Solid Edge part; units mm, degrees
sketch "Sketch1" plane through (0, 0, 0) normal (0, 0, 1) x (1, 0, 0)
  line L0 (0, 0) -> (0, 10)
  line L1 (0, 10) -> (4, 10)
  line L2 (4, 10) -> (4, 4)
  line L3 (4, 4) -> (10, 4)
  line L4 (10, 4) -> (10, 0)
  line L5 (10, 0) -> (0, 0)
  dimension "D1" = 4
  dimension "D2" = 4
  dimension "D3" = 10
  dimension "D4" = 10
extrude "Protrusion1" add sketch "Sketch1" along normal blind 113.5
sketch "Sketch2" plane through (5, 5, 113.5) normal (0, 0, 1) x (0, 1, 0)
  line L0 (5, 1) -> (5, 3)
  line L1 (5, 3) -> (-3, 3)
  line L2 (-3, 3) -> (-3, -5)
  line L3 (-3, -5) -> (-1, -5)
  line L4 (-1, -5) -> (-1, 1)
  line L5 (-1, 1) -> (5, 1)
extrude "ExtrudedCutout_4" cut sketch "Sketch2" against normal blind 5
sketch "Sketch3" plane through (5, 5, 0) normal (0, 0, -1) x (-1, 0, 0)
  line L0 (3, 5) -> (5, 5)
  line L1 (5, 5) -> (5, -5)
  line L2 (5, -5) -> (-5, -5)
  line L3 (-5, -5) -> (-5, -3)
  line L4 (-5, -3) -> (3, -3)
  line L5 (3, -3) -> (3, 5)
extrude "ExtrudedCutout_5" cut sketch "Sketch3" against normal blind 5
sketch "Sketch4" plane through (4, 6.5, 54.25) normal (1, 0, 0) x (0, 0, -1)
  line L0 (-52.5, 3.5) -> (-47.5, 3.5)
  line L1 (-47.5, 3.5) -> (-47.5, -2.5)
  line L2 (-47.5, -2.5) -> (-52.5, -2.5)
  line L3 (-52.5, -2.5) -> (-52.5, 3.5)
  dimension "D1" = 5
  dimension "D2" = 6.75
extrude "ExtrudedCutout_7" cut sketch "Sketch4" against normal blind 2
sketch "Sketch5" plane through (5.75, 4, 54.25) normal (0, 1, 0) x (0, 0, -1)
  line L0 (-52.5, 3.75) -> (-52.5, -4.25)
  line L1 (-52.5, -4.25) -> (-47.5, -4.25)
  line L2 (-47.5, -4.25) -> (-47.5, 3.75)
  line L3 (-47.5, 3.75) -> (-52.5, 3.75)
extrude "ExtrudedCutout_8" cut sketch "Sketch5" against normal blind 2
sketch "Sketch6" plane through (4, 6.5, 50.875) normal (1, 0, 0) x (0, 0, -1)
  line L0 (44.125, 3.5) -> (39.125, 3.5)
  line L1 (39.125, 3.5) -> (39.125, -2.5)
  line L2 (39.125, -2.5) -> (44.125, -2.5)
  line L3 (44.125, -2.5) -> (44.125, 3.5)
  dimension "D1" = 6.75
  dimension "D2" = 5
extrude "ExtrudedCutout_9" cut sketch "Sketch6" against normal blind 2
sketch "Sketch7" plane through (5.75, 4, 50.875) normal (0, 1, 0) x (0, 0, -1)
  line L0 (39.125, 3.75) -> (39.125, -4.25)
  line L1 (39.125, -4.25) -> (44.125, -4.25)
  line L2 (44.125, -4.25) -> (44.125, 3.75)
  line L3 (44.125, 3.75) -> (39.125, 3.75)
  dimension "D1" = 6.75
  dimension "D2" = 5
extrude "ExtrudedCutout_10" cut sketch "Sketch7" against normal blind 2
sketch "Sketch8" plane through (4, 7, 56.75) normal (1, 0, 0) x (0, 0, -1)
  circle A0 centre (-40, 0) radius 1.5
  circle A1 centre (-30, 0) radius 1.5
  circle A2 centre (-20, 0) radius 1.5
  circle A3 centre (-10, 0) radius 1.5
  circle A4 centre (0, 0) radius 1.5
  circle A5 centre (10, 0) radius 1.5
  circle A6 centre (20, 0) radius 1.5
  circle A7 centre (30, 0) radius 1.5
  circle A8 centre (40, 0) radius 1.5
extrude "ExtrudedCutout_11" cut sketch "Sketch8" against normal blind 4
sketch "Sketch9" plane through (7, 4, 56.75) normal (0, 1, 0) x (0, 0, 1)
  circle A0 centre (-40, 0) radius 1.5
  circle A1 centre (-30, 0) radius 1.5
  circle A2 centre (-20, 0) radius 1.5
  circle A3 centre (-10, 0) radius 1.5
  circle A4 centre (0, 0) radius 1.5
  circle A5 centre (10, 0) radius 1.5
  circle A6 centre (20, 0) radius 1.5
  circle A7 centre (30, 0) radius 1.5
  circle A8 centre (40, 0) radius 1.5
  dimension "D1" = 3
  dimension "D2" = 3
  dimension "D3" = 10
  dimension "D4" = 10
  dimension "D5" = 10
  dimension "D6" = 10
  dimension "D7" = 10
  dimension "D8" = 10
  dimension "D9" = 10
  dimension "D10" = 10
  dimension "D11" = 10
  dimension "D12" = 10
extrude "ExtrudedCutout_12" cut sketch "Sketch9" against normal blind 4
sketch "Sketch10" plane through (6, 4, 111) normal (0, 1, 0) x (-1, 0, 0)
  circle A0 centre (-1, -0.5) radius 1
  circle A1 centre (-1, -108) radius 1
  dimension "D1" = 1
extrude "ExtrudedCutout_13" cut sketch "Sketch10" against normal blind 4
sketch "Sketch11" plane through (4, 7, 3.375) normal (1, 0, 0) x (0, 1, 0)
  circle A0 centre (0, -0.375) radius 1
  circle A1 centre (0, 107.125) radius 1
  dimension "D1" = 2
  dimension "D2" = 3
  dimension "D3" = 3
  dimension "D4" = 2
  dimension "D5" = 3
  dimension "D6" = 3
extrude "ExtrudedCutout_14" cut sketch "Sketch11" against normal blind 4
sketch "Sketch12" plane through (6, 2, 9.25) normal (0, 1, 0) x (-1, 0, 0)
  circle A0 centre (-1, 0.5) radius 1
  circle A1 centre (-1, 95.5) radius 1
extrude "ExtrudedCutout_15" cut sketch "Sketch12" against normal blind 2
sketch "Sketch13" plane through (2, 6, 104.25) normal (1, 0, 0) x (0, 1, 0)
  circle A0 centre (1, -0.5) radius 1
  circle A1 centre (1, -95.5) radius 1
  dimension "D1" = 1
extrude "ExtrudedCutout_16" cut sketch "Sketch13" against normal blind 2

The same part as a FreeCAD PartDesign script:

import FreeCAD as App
import Part
import Sketcher

V = App.Vector
Q = App.Units.Quantity

doc = App.newDocument("Part")
body = doc.addObject("PartDesign::Body", "Body")

# Sketch on XY plane
sketch1 = body.newObject("Sketcher::SketchObject", "Sketch")
sketch1.AttachmentSupport = (doc.getObject("XY_Plane"), [""])
sketch1.MapMode = "FlatFace"
sketch1.addGeometry([
    Part.LineSegment(V(0, 10, 0), V(0, 0, 0)),  # 0
    Part.LineSegment(V(0, 0, 0), V(10, 0, 0)),  # 1
    Part.LineSegment(V(10, 0, 0), V(10, 4, 0)),  # 2
    Part.LineSegment(V(10, 4, 0), V(4, 4, 0)),  # 3
    Part.LineSegment(V(4, 4, 0), V(4, 10, 0)),  # 4
    Part.LineSegment(V(4, 10, 0), V(0, 10, 0)),  # 5
], False)
sketch1.addConstraint([
    Sketcher.Constraint("Coincident", 0, 2, 1, 1),
    Sketcher.Constraint("Coincident", 1, 2, 2, 1),
    Sketcher.Constraint("Coincident", 2, 2, 3, 1),
    Sketcher.Constraint("Coincident", 3, 2, 4, 1),
    Sketcher.Constraint("Coincident", 4, 2, 5, 1),
    Sketcher.Constraint("Coincident", 5, 2, 0, 1),
    Sketcher.Constraint("Vertical", 0),
    Sketcher.Constraint("Horizontal", 1),
    Sketcher.Constraint("Vertical", 2),
    Sketcher.Constraint("Horizontal", 3),
    Sketcher.Constraint("Vertical", 4),
    Sketcher.Constraint("Horizontal", 5),
    Sketcher.Constraint("Coincident", 0, 2, -1, 1),
    Sketcher.Constraint("Equal", 1, 0),
    Sketcher.Constraint("Equal", 5, 2),
    Sketcher.Constraint("DistanceX", 1, 1, 1, 2, Q("10 mm")),
    Sketcher.Constraint("DistanceX", 3, 2, 3, 1, Q("6 mm")),
])
pad1 = body.newObject("PartDesign::Pad", "Pad")
pad1.Profile = sketch1
pad1.Length = 113.5

# Sketch on XY plane
sketch2 = body.newObject("Sketcher::SketchObject", "Sketch001")
sketch2.AttachmentSupport = (doc.getObject("XY_Plane"), [""])
sketch2.MapMode = "FlatFace"
sketch2.AttachmentOffset = App.Placement(V(0, 0, 113.5), App.Rotation())
sketch2.addGeometry([
    Part.LineSegment(V(4, 4, 0), V(4, 10, 0)),  # 0
    Part.LineSegment(V(4, 10, 0), V(2, 10, 0)),  # 1
    Part.LineSegment(V(2, 10, 0), V(2, 2, 0)),  # 2
    Part.LineSegment(V(2, 2, 0), V(10, 2, 0)),  # 3
    Part.LineSegment(V(10, 2, 0), V(10, 4, 0)),  # 4
    Part.LineSegment(V(10, 4, 0), V(4, 4, 0)),  # 5
], False)
sketch2.addConstraint([
    Sketcher.Constraint("Coincident", 0, 2, 1, 1),
    Sketcher.Constraint("Coincident", 1, 2, 2, 1),
    Sketcher.Constraint("Coincident", 2, 2, 3, 1),
    Sketcher.Constraint("Coincident", 3, 2, 4, 1),
    Sketcher.Constraint("Coincident", 4, 2, 5, 1),
    Sketcher.Constraint("Coincident", 5, 2, 0, 1),
    Sketcher.Constraint("Vertical", 0),
    Sketcher.Constraint("Horizontal", 1),
    Sketcher.Constraint("Vertical", 2),
    Sketcher.Constraint("Horizontal", 3),
    Sketcher.Constraint("Vertical", 4),
    Sketcher.Constraint("Horizontal", 5),
    Sketcher.Constraint("Equal", 5, 0),
    Sketcher.Constraint("Equal", 3, 2),
    Sketcher.Constraint("DistanceX", 1, 2, 1, 1, Q("2 mm")),
    Sketcher.Constraint("DistanceX", 3, 1, 3, 2, Q("8 mm")),
    Sketcher.Constraint("DistanceX", -1, 1, 0, 2, Q("4 mm")),
    Sketcher.Constraint("DistanceY", -1, 1, 0, 2, Q("10 mm")),
])
pocket1 = body.newObject("PartDesign::Pocket", "Pocket")
pocket1.Profile = sketch2
pocket1.Length = 5

# Sketch on XY plane
sketch3 = body.newObject("Sketcher::SketchObject", "Sketch002")
sketch3.AttachmentSupport = (doc.getObject("XY_Plane"), [""])
sketch3.MapMode = "FlatFace"
sketch3.addGeometry([
    Part.LineSegment(V(0, 10, 0), V(2, 10, 0)),  # 0
    Part.LineSegment(V(2, 10, 0), V(2, 2, 0)),  # 1
    Part.LineSegment(V(2, 2, 0), V(10, 2, 0)),  # 2
    Part.LineSegment(V(10, 2, 0), V(10, 0, 0)),  # 3
    Part.LineSegment(V(10, 0, 0), V(0, 0, 0)),  # 4
    Part.LineSegment(V(0, 0, 0), V(0, 10, 0)),  # 5
], False)
sketch3.addConstraint([
    Sketcher.Constraint("Coincident", 0, 2, 1, 1),
    Sketcher.Constraint("Coincident", 1, 2, 2, 1),
    Sketcher.Constraint("Coincident", 2, 2, 3, 1),
    Sketcher.Constraint("Coincident", 3, 2, 4, 1),
    Sketcher.Constraint("Coincident", 4, 2, 5, 1),
    Sketcher.Constraint("Coincident", 5, 2, 0, 1),
    Sketcher.Constraint("Horizontal", 0),
    Sketcher.Constraint("Vertical", 1),
    Sketcher.Constraint("Horizontal", 2),
    Sketcher.Constraint("Vertical", 3),
    Sketcher.Constraint("Horizontal", 4),
    Sketcher.Constraint("Vertical", 5),
    Sketcher.Constraint("Coincident", 4, 2, -1, 1),
    Sketcher.Constraint("Equal", 2, 1),
    Sketcher.Constraint("Equal", 0, 3),
    Sketcher.Constraint("DistanceX", 0, 1, 0, 2, Q("2 mm")),
    Sketcher.Constraint("DistanceX", 2, 1, 2, 2, Q("8 mm")),
])
pocket2 = body.newObject("PartDesign::Pocket", "Pocket001")
pocket2.Profile = sketch3
pocket2.Length = 5
pocket2.Reversed = True

# Sketch on YZ plane
sketch4 = body.newObject("Sketcher::SketchObject", "Sketch003")
sketch4.AttachmentSupport = (doc.getObject("YZ_Plane"), [""])
sketch4.MapMode = "FlatFace"
sketch4.AttachmentOffset = App.Placement(V(0, 0, 4), App.Rotation())
sketch4.addGeometry([
    Part.LineSegment(V(10, 102, 0), V(10, 107, 0)),
    Part.LineSegment(V(10, 107, 0), V(4, 107, 0)),
    Part.LineSegment(V(4, 107, 0), V(4, 102, 0)),
    Part.LineSegment(V(4, 102, 0), V(10, 102, 0)),
], False)
sketch4.addConstraint([
    Sketcher.Constraint("Coincident", 0, 2, 1, 1),
    Sketcher.Constraint("Coincident", 1, 2, 2, 1),
    Sketcher.Constraint("Coincident", 2, 2, 3, 1),
    Sketcher.Constraint("Coincident", 3, 2, 0, 1),
    Sketcher.Constraint("Vertical", 0),
    Sketcher.Constraint("Horizontal", 1),
    Sketcher.Constraint("Vertical", 2),
    Sketcher.Constraint("Horizontal", 3),
    Sketcher.Constraint("DistanceX", 1, 2, 1, 1, Q("6 mm")),
    Sketcher.Constraint("DistanceY", 0, 1, 0, 2, Q("5 mm")),
    Sketcher.Constraint("DistanceX", -1, 1, 0, 2, Q("10 mm")),
    Sketcher.Constraint("DistanceY", -1, 1, 0, 2, Q("106.75 mm")),
])
pocket3 = body.newObject("PartDesign::Pocket", "Pocket002")
pocket3.Profile = sketch4
pocket3.Length = 2

# Sketch on XZ plane
sketch5 = body.newObject("Sketcher::SketchObject", "Sketch004")
sketch5.AttachmentSupport = (doc.getObject("XZ_Plane"), [""])
sketch5.MapMode = "FlatFace"
sketch5.AttachmentOffset = App.Placement(V(0, 0, -4), App.Rotation())
sketch5.addGeometry([
    Part.LineSegment(V(2, 102, 0), V(2, 107, 0)),
    Part.LineSegment(V(2, 107, 0), V(10, 107, 0)),
    Part.LineSegment(V(10, 107, 0), V(10, 102, 0)),
    Part.LineSegment(V(10, 102, 0), V(2, 102, 0)),
], False)
sketch5.addConstraint([
    Sketcher.Constraint("Coincident", 0, 2, 1, 1),
    Sketcher.Constraint("Coincident", 1, 2, 2, 1),
    Sketcher.Constraint("Coincident", 2, 2, 3, 1),
    Sketcher.Constraint("Coincident", 3, 2, 0, 1),
    Sketcher.Constraint("Vertical", 0),
    Sketcher.Constraint("Horizontal", 1),
    Sketcher.Constraint("Vertical", 2),
    Sketcher.Constraint("Horizontal", 3),
    Sketcher.Constraint("DistanceX", 1, 1, 1, 2, Q("8 mm")),
    Sketcher.Constraint("DistanceY", 0, 1, 0, 2, Q("5 mm")),
    Sketcher.Constraint("DistanceX", -1, 1, 0, 2, Q("2 mm")),
    Sketcher.Constraint("DistanceY", -1, 1, 0, 2, Q("106.75 mm")),
])
pocket4 = body.newObject("PartDesign::Pocket", "Pocket003")
pocket4.Profile = sketch5
pocket4.Length = 2
pocket4.Reversed = True

# Sketch on YZ plane
sketch6 = body.newObject("Sketcher::SketchObject", "Sketch005")
sketch6.AttachmentSupport = (doc.getObject("YZ_Plane"), [""])
sketch6.MapMode = "FlatFace"
sketch6.AttachmentOffset = App.Placement(V(0, 0, 4), App.Rotation())
sketch6.addGeometry([
    Part.LineSegment(V(4, 7, 0), V(10, 7, 0)),
    Part.LineSegment(V(10, 7, 0), V(10, 12, 0)),
    Part.LineSegment(V(10, 12, 0), V(4, 12, 0)),
    Part.LineSegment(V(4, 12, 0), V(4, 7, 0)),
], False)
sketch6.addConstraint([
    Sketcher.Constraint("Coincident", 0, 2, 1, 1),
    Sketcher.Constraint("Coincident", 1, 2, 2, 1),
    Sketcher.Constraint("Coincident", 2, 2, 3, 1),
    Sketcher.Constraint("Coincident", 3, 2, 0, 1),
    Sketcher.Constraint("Horizontal", 0),
    Sketcher.Constraint("Vertical", 1),
    Sketcher.Constraint("Horizontal", 2),
    Sketcher.Constraint("Vertical", 3),
    Sketcher.Constraint("DistanceX", 0, 1, 0, 2, Q("6 mm")),
    Sketcher.Constraint("DistanceY", 1, 1, 1, 2, Q("5 mm")),
    Sketcher.Constraint("DistanceX", -1, 1, 0, 2, Q("10 mm")),
    Sketcher.Constraint("DistanceY", -1, 1, 0, 2, Q("6.75 mm")),
])
pocket5 = body.newObject("PartDesign::Pocket", "Pocket004")
pocket5.Profile = sketch6
pocket5.Length = 2

# Sketch on XZ plane
sketch7 = body.newObject("Sketcher::SketchObject", "Sketch006")
sketch7.AttachmentSupport = (doc.getObject("XZ_Plane"), [""])
sketch7.MapMode = "FlatFace"
sketch7.AttachmentOffset = App.Placement(V(0, 0, -4), App.Rotation())
sketch7.addGeometry([
    Part.LineSegment(V(2, 7, 0), V(2, 12, 0)),
    Part.LineSegment(V(2, 12, 0), V(10, 12, 0)),
    Part.LineSegment(V(10, 12, 0), V(10, 7, 0)),
    Part.LineSegment(V(10, 7, 0), V(2, 7, 0)),
], False)
sketch7.addConstraint([
    Sketcher.Constraint("Coincident", 0, 2, 1, 1),
    Sketcher.Constraint("Coincident", 1, 2, 2, 1),
    Sketcher.Constraint("Coincident", 2, 2, 3, 1),
    Sketcher.Constraint("Coincident", 3, 2, 0, 1),
    Sketcher.Constraint("Vertical", 0),
    Sketcher.Constraint("Horizontal", 1),
    Sketcher.Constraint("Vertical", 2),
    Sketcher.Constraint("Horizontal", 3),
    Sketcher.Constraint("DistanceX", 1, 1, 1, 2, Q("8 mm")),
    Sketcher.Constraint("DistanceY", 0, 1, 0, 2, Q("5 mm")),
    Sketcher.Constraint("DistanceX", -1, 1, 0, 2, Q("2 mm")),
    Sketcher.Constraint("DistanceY", -1, 1, 0, 2, Q("11.75 mm")),
])
pocket6 = body.newObject("PartDesign::Pocket", "Pocket005")
pocket6.Profile = sketch7
pocket6.Length = 2
pocket6.Reversed = True

# Sketch on YZ plane
sketch8 = body.newObject("Sketcher::SketchObject", "Sketch007")
sketch8.AttachmentSupport = (doc.getObject("YZ_Plane"), [""])
sketch8.MapMode = "FlatFace"
sketch8.AttachmentOffset = App.Placement(V(0, 0, 4), App.Rotation())
sketch8.addGeometry([
    Part.Circle(V(7, 96.8, 0), V(0, 0, 1), 1.5),  # 0
    Part.Circle(V(7, 86.8, 0), V(0, 0, 1), 1.5),  # 1
    Part.Circle(V(7, 76.8, 0), V(0, 0, 1), 1.5),  # 2
    Part.Circle(V(7, 66.8, 0), V(0, 0, 1), 1.5),  # 3
    Part.Circle(V(7, 56.8, 0), V(0, 0, 1), 1.5),  # 4
    Part.Circle(V(7, 46.8, 0), V(0, 0, 1), 1.5),  # 5
    Part.Circle(V(7, 36.8, 0), V(0, 0, 1), 1.5),  # 6
    Part.Circle(V(7, 26.8, 0), V(0, 0, 1), 1.5),  # 7
    Part.Circle(V(7, 16.8, 0), V(0, 0, 1), 1.5),  # 8
], False)
sketch8.addConstraint([
    Sketcher.Constraint("Equal", 0, 1),
    Sketcher.Constraint("Equal", 1, 2),
    Sketcher.Constraint("Equal", 2, 3),
    Sketcher.Constraint("Equal", 3, 4),
    Sketcher.Constraint("Equal", 4, 5),
    Sketcher.Constraint("Equal", 5, 6),
    Sketcher.Constraint("Equal", 6, 7),
    Sketcher.Constraint("Equal", 7, 8),
    Sketcher.Constraint("Vertical", 0, 3, 1, 3),
    Sketcher.Constraint("Vertical", 1, 3, 2, 3),
    Sketcher.Constraint("Vertical", 2, 3, 3, 3),
    Sketcher.Constraint("Vertical", 3, 3, 4, 3),
    Sketcher.Constraint("Vertical", 4, 3, 5, 3),
    Sketcher.Constraint("Vertical", 5, 3, 6, 3),
    Sketcher.Constraint("Vertical", 6, 3, 7, 3),
    Sketcher.Constraint("Vertical", 7, 3, 8, 3),
    Sketcher.Constraint("Diameter", 0, Q("3 mm")),
    Sketcher.Constraint("DistanceX", -1, 1, 0, 3, Q("7 mm")),
    Sketcher.Constraint("DistanceY", 1, 3, 0, 3, Q("10 mm")),
    Sketcher.Constraint("DistanceY", 2, 3, 1, 3, Q("10 mm")),
    Sketcher.Constraint("DistanceY", 3, 3, 2, 3, Q("10 mm")),
    Sketcher.Constraint("DistanceY", 4, 3, 3, 3, Q("10 mm")),
    Sketcher.Constraint("DistanceY", 5, 3, 4, 3, Q("10 mm")),
    Sketcher.Constraint("DistanceY", 6, 3, 5, 3, Q("10 mm")),
    Sketcher.Constraint("DistanceY", 7, 3, 6, 3, Q("10 mm")),
    Sketcher.Constraint("DistanceY", 8, 3, 7, 3, Q("10 mm")),
    Sketcher.Constraint("DistanceY", -1, 1, 0, 3, Q("96.75 mm")),
])
pocket7 = body.newObject("PartDesign::Pocket", "Pocket006")
pocket7.Profile = sketch8
pocket7.Length = 4

# Sketch on XZ plane
sketch9 = body.newObject("Sketcher::SketchObject", "Sketch008")
sketch9.AttachmentSupport = (doc.getObject("XZ_Plane"), [""])
sketch9.MapMode = "FlatFace"
sketch9.AttachmentOffset = App.Placement(V(0, 0, -4), App.Rotation())
sketch9.addGeometry([
    Part.Circle(V(7, 16.8, 0), V(0, 0, 1), 1.5),  # 0
    Part.Circle(V(7, 26.8, 0), V(0, 0, 1), 1.5),  # 1
    Part.Circle(V(7, 36.8, 0), V(0, 0, 1), 1.5),  # 2
    Part.Circle(V(7, 46.8, 0), V(0, 0, 1), 1.5),  # 3
    Part.Circle(V(7, 56.8, 0), V(0, 0, 1), 1.5),  # 4
    Part.Circle(V(7, 66.8, 0), V(0, 0, 1), 1.5),  # 5
    Part.Circle(V(7, 76.8, 0), V(0, 0, 1), 1.5),  # 6
    Part.Circle(V(7, 86.8, 0), V(0, 0, 1), 1.5),  # 7
    Part.Circle(V(7, 96.8, 0), V(0, 0, 1), 1.5),  # 8
], False)
sketch9.addConstraint([
    Sketcher.Constraint("Equal", 0, 1),
    Sketcher.Constraint("Equal", 1, 2),
    Sketcher.Constraint("Equal", 2, 3),
    Sketcher.Constraint("Equal", 3, 4),
    Sketcher.Constraint("Equal", 4, 5),
    Sketcher.Constraint("Equal", 5, 6),
    Sketcher.Constraint("Equal", 6, 7),
    Sketcher.Constraint("Equal", 7, 8),
    Sketcher.Constraint("Vertical", 0, 3, 1, 3),
    Sketcher.Constraint("Vertical", 1, 3, 2, 3),
    Sketcher.Constraint("Vertical", 2, 3, 3, 3),
    Sketcher.Constraint("Vertical", 3, 3, 4, 3),
    Sketcher.Constraint("Vertical", 4, 3, 5, 3),
    Sketcher.Constraint("Vertical", 5, 3, 6, 3),
    Sketcher.Constraint("Vertical", 6, 3, 7, 3),
    Sketcher.Constraint("Vertical", 7, 3, 8, 3),
    Sketcher.Constraint("Diameter", 0, Q("3 mm")),
    Sketcher.Constraint("DistanceY", 0, 3, 4, 3, Q("40 mm")),
    Sketcher.Constraint("DistanceY", 1, 3, 5, 3, Q("40 mm")),
    Sketcher.Constraint("DistanceY", 2, 3, 6, 3, Q("40 mm")),
    Sketcher.Constraint("DistanceY", 3, 3, 7, 3, Q("40 mm")),
    Sketcher.Constraint("DistanceY", 4, 3, 8, 3, Q("40 mm")),
    Sketcher.Constraint("DistanceX", -1, 1, 0, 3, Q("7 mm")),
    Sketcher.Constraint("DistanceY", 0, 3, 1, 3, Q("10 mm")),
    Sketcher.Constraint("DistanceY", 1, 3, 2, 3, Q("10 mm")),
    Sketcher.Constraint("DistanceY", 2, 3, 3, 3, Q("10 mm")),
    Sketcher.Constraint("DistanceY", -1, 1, 0, 3, Q("16.75 mm")),
])
pocket8 = body.newObject("PartDesign::Pocket", "Pocket007")
pocket8.Profile = sketch9
pocket8.Length = 4
pocket8.Reversed = True

# Sketch on XZ plane
sketch10 = body.newObject("Sketcher::SketchObject", "Sketch009")
sketch10.AttachmentSupport = (doc.getObject("XZ_Plane"), [""])
sketch10.MapMode = "FlatFace"
sketch10.AttachmentOffset = App.Placement(V(0, 0, -4), App.Rotation())
sketch10.addGeometry([
    Part.Circle(V(7, 110.5, 0), V(0, 0, 1), 1),
    Part.Circle(V(7, 3, 0), V(0, 0, 1), 1),
], False)
sketch10.addConstraint([
    Sketcher.Constraint("Equal", 0, 1),
    Sketcher.Constraint("Vertical", 0, 3, 1, 3),
    Sketcher.Constraint("Diameter", 0, Q("2 mm")),
    Sketcher.Constraint("DistanceX", -1, 1, 0, 3, Q("7 mm")),
    Sketcher.Constraint("DistanceY", -1, 1, 1, 3, Q("3 mm")),
    Sketcher.Constraint("DistanceY", -1, 1, 0, 3, Q("110.5 mm")),
])
pocket9 = body.newObject("PartDesign::Pocket", "Pocket008")
pocket9.Profile = sketch10
pocket9.Length = 4
pocket9.Reversed = True

# Sketch on YZ plane
sketch11 = body.newObject("Sketcher::SketchObject", "Sketch010")
sketch11.AttachmentSupport = (doc.getObject("YZ_Plane"), [""])
sketch11.MapMode = "FlatFace"
sketch11.AttachmentOffset = App.Placement(V(0, 0, 4), App.Rotation())
sketch11.addGeometry([
    Part.Circle(V(7, 3, 0), V(0, 0, 1), 1),
    Part.Circle(V(7, 110.5, 0), V(0, 0, 1), 1),
], False)
sketch11.addConstraint([
    Sketcher.Constraint("Equal", 0, 1),
    Sketcher.Constraint("Vertical", 0, 3, 1, 3),
    Sketcher.Constraint("Diameter", 0, Q("2 mm")),
    Sketcher.Constraint("DistanceX", -1, 1, 0, 3, Q("7 mm")),
    Sketcher.Constraint("DistanceY", -1, 1, 0, 3, Q("3 mm")),
    Sketcher.Constraint("DistanceY", -1, 1, 1, 3, Q("110.5 mm")),
])
pocket10 = body.newObject("PartDesign::Pocket", "Pocket009")
pocket10.Profile = sketch11
pocket10.Length = 4

# Sketch on XZ plane
sketch12 = body.newObject("Sketcher::SketchObject", "Sketch011")
sketch12.AttachmentSupport = (doc.getObject("XZ_Plane"), [""])
sketch12.MapMode = "FlatFace"
sketch12.AttachmentOffset = App.Placement(V(0, 0, -2), App.Rotation())
sketch12.addGeometry([
    Part.Circle(V(7, 9.8, 0), V(0, 0, 1), 1),
    Part.Circle(V(7, 104.8, 0), V(0, 0, 1), 1),
], False)
sketch12.addConstraint([
    Sketcher.Constraint("Equal", 0, 1),
    Sketcher.Constraint("Vertical", 0, 3, 1, 3),
    Sketcher.Constraint("Diameter", 0, Q("2 mm")),
    Sketcher.Constraint("DistanceX", -1, 1, 0, 3, Q("7 mm")),
    Sketcher.Constraint("DistanceY", 0, 3, 1, 3, Q("95 mm")),
    Sketcher.Constraint("DistanceY", -1, 1, 0, 3, Q("9.75 mm")),
])
pocket11 = body.newObject("PartDesign::Pocket", "Pocket010")
pocket11.Profile = sketch12
pocket11.Length = 2
pocket11.Reversed = True

# Sketch on YZ plane
sketch13 = body.newObject("Sketcher::SketchObject", "Sketch012")
sketch13.AttachmentSupport = (doc.getObject("YZ_Plane"), [""])
sketch13.MapMode = "FlatFace"
sketch13.AttachmentOffset = App.Placement(V(0, 0, 2), App.Rotation())
sketch13.addGeometry([
    Part.Circle(V(7, 103.8, 0), V(0, 0, 1), 1),
    Part.Circle(V(7, 8.8, 0), V(0, 0, 1), 1),
], False)
sketch13.addConstraint([
    Sketcher.Constraint("Equal", 0, 1),
    Sketcher.Constraint("Vertical", 0, 3, 1, 3),
    Sketcher.Constraint("Diameter", 0, Q("2 mm")),
    Sketcher.Constraint("DistanceX", -1, 1, 0, 3, Q("7 mm")),
    Sketcher.Constraint("DistanceY", 1, 3, 0, 3, Q("95 mm")),
    Sketcher.Constraint("DistanceY", -1, 1, 0, 3, Q("103.75 mm")),
])
pocket12 = body.newObject("PartDesign::Pocket", "Pocket011")
pocket12.Profile = sketch13
pocket12.Length = 2

doc.recompute()
